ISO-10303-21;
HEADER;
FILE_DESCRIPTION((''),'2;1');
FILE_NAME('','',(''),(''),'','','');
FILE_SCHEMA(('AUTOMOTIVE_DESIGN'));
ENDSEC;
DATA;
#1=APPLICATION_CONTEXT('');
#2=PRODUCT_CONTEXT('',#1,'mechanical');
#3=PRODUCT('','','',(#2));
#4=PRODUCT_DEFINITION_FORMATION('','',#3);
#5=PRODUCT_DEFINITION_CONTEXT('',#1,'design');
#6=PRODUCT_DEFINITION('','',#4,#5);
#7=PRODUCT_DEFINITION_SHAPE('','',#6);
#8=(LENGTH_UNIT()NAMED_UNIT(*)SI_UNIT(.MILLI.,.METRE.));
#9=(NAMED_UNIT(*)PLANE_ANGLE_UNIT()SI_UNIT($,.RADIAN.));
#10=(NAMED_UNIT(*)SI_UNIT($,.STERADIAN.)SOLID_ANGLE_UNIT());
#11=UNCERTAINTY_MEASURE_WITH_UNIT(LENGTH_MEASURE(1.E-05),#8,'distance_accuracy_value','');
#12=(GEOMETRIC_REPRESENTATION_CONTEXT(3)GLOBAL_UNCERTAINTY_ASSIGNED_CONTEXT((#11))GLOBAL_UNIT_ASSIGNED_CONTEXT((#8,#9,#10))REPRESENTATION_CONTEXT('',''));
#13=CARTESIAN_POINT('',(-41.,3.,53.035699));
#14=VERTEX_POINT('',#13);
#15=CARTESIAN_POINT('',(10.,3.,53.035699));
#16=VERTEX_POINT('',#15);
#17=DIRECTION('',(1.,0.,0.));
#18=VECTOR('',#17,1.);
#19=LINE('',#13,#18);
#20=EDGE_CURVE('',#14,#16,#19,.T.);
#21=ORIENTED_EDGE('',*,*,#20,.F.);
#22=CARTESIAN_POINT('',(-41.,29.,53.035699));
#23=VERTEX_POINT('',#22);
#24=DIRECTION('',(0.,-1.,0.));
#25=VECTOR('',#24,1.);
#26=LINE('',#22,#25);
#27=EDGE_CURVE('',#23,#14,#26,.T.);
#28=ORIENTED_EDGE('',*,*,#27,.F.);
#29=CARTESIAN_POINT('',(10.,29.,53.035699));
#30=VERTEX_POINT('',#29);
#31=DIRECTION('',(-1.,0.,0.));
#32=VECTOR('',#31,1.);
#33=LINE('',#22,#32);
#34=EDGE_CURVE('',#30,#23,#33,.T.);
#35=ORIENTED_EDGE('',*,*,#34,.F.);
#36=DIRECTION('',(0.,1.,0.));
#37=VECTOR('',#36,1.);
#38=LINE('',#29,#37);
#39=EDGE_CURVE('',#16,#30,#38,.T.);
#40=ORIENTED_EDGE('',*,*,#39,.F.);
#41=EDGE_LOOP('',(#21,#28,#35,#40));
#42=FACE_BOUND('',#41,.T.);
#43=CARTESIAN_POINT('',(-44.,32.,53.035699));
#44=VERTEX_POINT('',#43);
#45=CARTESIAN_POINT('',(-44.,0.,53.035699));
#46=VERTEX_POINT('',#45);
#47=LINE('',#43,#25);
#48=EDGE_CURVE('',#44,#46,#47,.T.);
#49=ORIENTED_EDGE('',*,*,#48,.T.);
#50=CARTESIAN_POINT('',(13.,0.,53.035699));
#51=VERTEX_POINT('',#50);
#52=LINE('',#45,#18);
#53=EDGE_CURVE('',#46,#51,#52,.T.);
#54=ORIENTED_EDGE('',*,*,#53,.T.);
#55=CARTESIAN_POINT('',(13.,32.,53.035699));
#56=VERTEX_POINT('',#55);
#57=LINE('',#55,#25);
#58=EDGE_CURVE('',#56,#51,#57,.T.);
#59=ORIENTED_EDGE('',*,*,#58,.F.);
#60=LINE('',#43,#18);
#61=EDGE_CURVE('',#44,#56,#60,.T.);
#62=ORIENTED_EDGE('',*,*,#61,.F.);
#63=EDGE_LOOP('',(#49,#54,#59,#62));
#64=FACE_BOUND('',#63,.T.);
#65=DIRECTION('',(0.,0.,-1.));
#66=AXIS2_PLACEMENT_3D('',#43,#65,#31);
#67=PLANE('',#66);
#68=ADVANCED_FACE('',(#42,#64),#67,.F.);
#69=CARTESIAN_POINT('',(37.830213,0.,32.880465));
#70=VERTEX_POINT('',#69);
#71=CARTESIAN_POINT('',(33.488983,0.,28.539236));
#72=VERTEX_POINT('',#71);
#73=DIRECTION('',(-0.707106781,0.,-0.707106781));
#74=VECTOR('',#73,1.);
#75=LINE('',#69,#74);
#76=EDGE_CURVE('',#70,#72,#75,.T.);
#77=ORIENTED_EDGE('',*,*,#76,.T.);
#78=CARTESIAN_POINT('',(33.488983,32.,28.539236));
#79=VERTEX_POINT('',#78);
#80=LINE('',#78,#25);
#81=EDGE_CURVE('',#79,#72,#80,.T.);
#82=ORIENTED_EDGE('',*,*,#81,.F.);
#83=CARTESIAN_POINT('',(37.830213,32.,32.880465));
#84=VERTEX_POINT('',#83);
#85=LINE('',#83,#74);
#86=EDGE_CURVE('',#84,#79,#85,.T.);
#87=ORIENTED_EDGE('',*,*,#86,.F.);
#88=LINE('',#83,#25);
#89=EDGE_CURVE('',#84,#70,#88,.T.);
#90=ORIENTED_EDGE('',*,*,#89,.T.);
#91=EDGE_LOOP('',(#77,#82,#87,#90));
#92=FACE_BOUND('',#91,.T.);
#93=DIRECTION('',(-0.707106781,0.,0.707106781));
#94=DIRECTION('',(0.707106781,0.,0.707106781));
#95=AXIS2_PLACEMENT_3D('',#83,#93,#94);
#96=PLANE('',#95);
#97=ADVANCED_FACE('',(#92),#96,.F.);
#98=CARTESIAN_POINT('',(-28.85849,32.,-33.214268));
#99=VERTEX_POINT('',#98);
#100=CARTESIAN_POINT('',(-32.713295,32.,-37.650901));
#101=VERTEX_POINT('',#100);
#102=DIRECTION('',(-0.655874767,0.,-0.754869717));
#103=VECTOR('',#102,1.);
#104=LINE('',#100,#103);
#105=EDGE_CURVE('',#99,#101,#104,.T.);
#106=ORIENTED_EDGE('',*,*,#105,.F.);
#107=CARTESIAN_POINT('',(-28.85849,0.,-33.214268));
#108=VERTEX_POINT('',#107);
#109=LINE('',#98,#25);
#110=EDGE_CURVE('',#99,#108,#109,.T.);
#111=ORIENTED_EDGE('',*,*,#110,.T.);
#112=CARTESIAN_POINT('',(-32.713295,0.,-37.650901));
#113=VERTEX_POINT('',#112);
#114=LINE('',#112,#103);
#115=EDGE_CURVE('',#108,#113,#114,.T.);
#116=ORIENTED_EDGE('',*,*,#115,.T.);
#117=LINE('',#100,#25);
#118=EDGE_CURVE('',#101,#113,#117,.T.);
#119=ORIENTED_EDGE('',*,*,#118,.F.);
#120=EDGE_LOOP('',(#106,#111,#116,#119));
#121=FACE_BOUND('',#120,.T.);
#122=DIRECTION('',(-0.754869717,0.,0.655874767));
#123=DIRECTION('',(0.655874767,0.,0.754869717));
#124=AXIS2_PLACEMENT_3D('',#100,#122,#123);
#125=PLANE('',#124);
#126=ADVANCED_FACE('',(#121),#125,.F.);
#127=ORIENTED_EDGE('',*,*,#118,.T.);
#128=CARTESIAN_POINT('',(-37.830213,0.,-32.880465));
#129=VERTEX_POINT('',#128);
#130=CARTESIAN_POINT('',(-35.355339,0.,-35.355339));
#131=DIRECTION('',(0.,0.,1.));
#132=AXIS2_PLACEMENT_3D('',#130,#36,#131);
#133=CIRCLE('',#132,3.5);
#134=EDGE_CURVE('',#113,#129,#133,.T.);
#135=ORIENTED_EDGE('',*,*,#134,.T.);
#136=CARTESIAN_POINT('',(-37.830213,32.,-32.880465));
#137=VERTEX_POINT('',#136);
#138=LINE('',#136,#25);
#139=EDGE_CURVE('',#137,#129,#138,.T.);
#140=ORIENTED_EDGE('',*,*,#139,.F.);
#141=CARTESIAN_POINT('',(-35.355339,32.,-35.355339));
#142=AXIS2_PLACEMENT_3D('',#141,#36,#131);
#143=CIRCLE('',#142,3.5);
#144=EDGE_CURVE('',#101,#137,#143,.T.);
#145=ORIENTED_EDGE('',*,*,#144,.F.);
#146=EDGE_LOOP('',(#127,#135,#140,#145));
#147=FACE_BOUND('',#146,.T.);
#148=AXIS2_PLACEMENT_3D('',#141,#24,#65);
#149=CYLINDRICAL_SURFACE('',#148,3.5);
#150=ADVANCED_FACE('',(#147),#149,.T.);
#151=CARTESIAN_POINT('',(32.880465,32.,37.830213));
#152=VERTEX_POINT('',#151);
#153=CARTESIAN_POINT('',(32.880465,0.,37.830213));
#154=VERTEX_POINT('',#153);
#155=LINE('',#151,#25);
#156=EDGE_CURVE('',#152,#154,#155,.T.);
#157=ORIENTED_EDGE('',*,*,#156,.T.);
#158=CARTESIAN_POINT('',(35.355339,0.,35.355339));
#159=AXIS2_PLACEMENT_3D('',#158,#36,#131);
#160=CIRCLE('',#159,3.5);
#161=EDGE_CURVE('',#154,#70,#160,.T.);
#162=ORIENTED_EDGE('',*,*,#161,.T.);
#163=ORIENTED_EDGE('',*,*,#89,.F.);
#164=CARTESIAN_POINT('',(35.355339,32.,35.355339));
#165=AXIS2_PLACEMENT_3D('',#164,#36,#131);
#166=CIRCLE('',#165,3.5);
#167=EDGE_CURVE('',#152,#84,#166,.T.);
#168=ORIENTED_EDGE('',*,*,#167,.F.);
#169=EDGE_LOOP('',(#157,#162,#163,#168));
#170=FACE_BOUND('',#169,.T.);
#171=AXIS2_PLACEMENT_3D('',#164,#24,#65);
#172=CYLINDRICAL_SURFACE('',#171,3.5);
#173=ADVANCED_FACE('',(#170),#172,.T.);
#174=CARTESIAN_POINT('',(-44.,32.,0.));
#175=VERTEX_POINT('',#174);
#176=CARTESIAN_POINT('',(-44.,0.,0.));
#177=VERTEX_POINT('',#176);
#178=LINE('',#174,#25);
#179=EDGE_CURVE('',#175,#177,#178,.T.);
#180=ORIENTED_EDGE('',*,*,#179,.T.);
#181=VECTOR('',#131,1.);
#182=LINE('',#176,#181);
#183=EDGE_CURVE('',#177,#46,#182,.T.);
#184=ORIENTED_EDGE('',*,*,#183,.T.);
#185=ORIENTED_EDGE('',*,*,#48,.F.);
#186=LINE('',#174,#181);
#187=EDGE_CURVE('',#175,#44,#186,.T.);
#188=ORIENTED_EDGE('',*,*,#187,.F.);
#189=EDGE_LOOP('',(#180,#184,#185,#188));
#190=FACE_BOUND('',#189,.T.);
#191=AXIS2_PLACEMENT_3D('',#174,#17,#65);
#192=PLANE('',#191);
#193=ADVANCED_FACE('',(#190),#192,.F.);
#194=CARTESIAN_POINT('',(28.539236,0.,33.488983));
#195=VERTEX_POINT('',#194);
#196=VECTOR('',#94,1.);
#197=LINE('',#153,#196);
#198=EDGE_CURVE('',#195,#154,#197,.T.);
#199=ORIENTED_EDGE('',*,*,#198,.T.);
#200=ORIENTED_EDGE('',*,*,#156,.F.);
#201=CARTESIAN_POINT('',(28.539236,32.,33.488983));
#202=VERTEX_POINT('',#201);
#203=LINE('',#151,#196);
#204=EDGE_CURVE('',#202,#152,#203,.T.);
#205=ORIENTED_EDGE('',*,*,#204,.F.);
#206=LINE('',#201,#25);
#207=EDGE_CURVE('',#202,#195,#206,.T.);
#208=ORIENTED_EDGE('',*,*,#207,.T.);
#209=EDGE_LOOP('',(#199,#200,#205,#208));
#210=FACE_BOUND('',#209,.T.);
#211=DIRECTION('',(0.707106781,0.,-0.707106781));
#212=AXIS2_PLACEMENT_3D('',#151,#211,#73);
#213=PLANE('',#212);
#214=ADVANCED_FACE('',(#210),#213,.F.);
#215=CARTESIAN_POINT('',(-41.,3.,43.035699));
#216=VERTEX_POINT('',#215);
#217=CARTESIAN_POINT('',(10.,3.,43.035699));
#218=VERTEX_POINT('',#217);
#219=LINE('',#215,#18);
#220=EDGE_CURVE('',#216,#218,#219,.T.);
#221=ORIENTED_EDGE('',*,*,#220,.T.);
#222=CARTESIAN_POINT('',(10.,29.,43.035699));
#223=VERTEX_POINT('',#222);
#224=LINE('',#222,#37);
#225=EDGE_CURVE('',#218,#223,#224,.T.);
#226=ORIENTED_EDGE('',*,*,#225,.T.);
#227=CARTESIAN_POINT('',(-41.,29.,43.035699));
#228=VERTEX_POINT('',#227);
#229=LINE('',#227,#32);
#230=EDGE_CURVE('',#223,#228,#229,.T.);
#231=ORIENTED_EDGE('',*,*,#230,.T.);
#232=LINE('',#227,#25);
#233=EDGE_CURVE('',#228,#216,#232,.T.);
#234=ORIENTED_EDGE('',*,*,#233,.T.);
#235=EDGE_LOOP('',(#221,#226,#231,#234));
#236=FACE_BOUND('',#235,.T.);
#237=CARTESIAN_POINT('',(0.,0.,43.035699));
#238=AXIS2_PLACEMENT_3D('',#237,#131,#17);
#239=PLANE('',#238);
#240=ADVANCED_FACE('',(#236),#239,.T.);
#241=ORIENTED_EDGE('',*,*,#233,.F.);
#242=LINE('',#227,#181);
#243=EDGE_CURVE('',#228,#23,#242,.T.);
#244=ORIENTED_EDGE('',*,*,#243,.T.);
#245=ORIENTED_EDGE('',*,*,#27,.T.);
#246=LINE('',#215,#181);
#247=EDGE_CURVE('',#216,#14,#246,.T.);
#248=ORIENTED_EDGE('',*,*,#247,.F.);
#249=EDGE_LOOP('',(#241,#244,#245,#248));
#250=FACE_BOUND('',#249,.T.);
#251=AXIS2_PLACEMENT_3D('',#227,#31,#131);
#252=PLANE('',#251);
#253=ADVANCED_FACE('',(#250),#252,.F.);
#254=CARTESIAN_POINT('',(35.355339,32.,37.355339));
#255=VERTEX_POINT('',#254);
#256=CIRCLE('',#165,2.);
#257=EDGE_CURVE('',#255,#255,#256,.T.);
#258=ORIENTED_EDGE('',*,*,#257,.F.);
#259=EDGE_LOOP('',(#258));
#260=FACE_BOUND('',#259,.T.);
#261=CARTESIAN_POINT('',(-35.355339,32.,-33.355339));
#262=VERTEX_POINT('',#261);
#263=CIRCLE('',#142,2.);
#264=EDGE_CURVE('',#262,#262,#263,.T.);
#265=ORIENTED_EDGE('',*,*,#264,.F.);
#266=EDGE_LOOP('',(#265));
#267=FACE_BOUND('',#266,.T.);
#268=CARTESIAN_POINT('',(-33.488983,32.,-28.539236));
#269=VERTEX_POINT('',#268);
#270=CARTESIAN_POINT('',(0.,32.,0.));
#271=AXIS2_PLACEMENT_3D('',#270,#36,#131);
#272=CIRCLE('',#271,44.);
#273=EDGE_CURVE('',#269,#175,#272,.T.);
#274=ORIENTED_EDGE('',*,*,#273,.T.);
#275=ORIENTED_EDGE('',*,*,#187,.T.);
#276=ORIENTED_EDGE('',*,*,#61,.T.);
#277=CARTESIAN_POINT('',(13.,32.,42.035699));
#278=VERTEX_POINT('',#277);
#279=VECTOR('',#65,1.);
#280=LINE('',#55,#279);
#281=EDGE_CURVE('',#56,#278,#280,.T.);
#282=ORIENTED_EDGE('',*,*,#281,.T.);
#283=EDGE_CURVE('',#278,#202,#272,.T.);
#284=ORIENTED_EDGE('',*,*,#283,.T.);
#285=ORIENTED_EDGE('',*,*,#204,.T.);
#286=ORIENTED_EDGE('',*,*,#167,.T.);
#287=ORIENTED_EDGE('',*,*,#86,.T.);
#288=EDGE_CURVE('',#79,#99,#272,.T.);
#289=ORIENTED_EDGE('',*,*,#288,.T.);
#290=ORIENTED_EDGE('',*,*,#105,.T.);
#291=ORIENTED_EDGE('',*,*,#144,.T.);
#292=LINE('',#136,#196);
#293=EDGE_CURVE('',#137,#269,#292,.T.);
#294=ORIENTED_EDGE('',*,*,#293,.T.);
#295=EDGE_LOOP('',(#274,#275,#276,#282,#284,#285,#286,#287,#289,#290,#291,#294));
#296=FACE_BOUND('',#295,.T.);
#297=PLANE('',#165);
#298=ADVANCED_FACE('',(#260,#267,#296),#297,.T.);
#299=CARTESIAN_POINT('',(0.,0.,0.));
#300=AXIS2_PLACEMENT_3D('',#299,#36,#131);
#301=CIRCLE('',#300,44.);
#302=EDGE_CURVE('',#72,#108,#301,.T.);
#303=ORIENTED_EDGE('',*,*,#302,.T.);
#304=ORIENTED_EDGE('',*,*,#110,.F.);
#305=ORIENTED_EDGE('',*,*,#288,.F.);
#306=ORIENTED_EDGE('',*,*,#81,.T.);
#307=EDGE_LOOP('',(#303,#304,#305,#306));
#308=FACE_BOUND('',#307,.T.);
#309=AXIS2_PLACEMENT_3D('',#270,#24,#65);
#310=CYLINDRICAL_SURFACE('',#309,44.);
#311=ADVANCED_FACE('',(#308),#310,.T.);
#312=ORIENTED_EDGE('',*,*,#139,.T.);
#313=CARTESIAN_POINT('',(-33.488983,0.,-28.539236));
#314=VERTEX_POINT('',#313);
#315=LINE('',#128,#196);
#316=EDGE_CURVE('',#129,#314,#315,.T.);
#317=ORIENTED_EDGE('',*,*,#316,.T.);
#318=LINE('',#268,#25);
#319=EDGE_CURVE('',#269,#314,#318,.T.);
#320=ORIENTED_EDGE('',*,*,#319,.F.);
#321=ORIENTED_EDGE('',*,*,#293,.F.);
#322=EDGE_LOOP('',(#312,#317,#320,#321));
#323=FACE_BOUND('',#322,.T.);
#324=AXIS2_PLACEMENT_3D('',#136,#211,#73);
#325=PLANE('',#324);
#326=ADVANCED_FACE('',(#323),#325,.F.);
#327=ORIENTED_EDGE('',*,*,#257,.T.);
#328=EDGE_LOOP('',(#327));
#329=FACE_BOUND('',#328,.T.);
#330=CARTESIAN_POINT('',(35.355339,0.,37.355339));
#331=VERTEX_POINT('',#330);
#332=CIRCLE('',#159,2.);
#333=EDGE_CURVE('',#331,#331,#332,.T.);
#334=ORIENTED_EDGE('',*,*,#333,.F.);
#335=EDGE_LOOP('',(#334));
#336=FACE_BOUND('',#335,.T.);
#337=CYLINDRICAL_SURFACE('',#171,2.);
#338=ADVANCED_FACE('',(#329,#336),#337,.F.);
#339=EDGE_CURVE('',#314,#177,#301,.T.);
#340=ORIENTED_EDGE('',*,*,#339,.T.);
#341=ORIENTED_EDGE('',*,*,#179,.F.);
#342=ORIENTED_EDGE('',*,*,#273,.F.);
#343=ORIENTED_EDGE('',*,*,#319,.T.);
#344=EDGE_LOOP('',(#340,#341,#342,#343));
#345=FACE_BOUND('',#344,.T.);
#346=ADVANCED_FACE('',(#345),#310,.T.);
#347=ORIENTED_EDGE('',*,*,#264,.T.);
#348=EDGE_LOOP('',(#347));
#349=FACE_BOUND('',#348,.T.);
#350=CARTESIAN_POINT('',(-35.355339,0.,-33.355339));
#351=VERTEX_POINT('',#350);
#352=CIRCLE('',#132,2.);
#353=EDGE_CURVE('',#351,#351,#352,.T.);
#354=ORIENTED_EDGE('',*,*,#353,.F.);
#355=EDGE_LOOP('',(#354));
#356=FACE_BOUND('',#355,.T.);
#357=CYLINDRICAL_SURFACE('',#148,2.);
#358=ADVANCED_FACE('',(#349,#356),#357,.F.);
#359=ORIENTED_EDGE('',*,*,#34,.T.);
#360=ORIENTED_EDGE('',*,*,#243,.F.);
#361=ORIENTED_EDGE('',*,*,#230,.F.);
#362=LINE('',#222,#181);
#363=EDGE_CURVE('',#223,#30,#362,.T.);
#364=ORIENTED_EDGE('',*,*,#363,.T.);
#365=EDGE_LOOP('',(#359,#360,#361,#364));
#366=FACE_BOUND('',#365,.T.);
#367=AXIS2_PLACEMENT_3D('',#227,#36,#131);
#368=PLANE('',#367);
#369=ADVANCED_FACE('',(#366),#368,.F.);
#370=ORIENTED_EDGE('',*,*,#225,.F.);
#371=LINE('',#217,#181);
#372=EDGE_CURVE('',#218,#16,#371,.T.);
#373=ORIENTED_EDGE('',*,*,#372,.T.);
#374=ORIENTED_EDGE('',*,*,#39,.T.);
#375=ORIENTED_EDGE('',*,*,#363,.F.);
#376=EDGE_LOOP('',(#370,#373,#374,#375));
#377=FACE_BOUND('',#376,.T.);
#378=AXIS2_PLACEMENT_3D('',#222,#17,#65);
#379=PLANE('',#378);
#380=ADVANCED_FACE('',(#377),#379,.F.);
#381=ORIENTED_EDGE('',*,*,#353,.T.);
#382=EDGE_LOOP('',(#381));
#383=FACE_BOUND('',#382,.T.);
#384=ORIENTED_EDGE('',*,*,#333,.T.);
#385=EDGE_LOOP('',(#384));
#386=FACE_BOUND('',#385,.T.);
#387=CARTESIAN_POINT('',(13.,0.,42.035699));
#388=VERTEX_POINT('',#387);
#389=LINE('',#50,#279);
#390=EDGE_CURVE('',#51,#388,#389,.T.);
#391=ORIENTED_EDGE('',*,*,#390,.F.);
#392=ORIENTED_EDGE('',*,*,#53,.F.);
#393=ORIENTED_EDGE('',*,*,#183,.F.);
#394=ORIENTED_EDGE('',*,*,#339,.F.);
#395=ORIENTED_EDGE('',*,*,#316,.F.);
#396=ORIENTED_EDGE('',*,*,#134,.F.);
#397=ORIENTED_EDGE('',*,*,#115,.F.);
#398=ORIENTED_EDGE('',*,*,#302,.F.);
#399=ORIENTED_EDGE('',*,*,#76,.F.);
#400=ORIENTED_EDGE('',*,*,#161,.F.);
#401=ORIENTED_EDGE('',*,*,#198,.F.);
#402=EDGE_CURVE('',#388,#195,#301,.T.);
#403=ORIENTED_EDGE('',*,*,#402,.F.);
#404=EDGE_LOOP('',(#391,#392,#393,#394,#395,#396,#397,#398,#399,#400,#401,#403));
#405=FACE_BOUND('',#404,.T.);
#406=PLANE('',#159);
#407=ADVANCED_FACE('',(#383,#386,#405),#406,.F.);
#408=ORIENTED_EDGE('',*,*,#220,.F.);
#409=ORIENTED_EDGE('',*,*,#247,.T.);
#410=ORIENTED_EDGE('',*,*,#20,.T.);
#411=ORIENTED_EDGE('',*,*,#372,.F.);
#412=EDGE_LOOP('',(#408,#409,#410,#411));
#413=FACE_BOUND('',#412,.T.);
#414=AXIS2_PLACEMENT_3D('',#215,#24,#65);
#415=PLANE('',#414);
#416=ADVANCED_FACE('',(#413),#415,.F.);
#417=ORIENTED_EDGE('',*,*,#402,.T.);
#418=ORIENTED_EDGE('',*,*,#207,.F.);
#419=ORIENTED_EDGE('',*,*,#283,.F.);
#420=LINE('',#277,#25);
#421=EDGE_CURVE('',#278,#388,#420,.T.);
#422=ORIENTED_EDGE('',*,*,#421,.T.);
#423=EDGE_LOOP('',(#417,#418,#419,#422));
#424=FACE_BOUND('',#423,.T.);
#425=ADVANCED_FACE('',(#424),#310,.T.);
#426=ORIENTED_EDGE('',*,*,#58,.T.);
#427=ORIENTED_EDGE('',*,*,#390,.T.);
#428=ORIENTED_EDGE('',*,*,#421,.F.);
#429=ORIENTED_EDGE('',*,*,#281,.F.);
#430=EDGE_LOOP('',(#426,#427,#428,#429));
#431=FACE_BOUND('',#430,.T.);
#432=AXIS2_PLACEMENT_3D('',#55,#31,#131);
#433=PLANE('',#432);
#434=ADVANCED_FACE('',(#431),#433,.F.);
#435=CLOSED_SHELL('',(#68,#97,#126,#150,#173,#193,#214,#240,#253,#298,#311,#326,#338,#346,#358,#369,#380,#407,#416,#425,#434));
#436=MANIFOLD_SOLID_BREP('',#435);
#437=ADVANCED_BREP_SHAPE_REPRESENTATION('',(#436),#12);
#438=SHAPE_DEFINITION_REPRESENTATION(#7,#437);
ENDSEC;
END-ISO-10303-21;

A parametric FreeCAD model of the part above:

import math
import FreeCAD as App
import Part
import Sketcher
from FreeCAD import Vector
Q = App.Units.Quantity


def add_polygon(sketch, points):
    """Adds a closed chain of lines whose ends are joined by coincident constraints."""
    first, n = sketch.GeometryCount, len(points)
    for a, b in zip(points, points[1:] + points[:1]):
        sketch.addGeometry(Part.LineSegment(App.Vector(*a, 0), App.Vector(*b, 0)), False)
    for i in range(n):
        sketch.addConstraint(Sketcher.Constraint("Coincident", first + i, 2, first + (i + 1) % n, 1))

doc = App.newDocument("Part")
params = doc.addObject("Spreadsheet::Sheet", "Params")
for row, (alias, value) in enumerate([
    ("sketch1_diameter", "4 mm"),
    ("sketch1_radius", "44 mm"),
    ("sketch1_radius2", "3.5 mm"),
    ("sketch1_width", "57 mm"),
    ("sketch1_height", "11 mm"),
    ("pad1_length", "32 mm"),
    ("sketch2_width", "51 mm"),
    ("sketch2_height", "26 mm"),
    ("pocket1_length", "10 mm"),
], start=1):
    params.set(f"A{row}", alias)
    params.set(f"B{row}", "=" + value)
    params.setAlias(f"B{row}", alias)

body = doc.addObject("PartDesign::Body", "Body")

# Sketch on XZ plane
sketch1 = doc.addObject("Sketcher::SketchObject", "Sketch")
body.addObject(sketch1)
sketch1.AttachmentSupport = (doc.XZ_Plane, [""])
sketch1.MapMode = "FlatFace"
sketch1.addGeometry([
    Part.LineSegment(Vector(-37.830213, -32.880465, 0), Vector(-33.488983, -28.539236, 0)),  # 0
    Part.ArcOfCircle(Part.Circle(Vector(0, 0, 0), Vector(0, 0, 1), 44), math.radians(180), math.radians(220.437561)),  # 1
    Part.LineSegment(Vector(-44, 0, 0), Vector(-44, 53.035699, 0)),  # 2
    Part.LineSegment(Vector(-44, 53.035699, 0), Vector(13, 53.035699, 0)),  # 3
    Part.LineSegment(Vector(13, 53.035699, 0), Vector(13, 42.035699, 0)),  # 4
    Part.ArcOfCircle(Part.Circle(Vector(0, 0, 0), Vector(0, 0, 1), 44), math.radians(49.562439), math.radians(72.815204)),  # 5
    Part.LineSegment(Vector(28.539236, 33.488983, 0), Vector(32.880465, 37.830213, 0)),  # 6
    Part.ArcOfCircle(Part.Circle(Vector(35.355339, 35.355339, 0), Vector(0, 0, 1), 3.5), math.radians(-45), math.radians(135)),  # 7
    Part.LineSegment(Vector(37.830213, 32.880465, 0), Vector(33.488983, 28.539236, 0)),  # 8
    Part.ArcOfCircle(Part.Circle(Vector(0, 0, 0), Vector(0, 0, 1), 44), math.radians(-130.986013), math.radians(40.437561)),  # 9
    Part.LineSegment(Vector(-28.85849, -33.214268, 0), Vector(-32.713295, -37.650901, 0)),  # 10
    Part.ArcOfCircle(Part.Circle(Vector(-35.355339, -35.355339, 0), Vector(0, 0, 1), 3.5), math.radians(135), math.radians(319.013987)),  # 11
    Part.Circle(Vector(35.355339, 35.355339, 0), Vector(0, 0, 1), 2),  # 12
    Part.Circle(Vector(-35.355339, -35.355339, 0), Vector(0, 0, 1), 2),  # 13
], False)
sketch1.addConstraint([
    Sketcher.Constraint("Coincident", 0, 2, 1, 2),
    Sketcher.Constraint("Tangent", 1, 1, 2, 1),
    Sketcher.Constraint("Coincident", 2, 2, 3, 1),
    Sketcher.Constraint("Coincident", 3, 2, 4, 1),
    Sketcher.Constraint("Coincident", 4, 2, 5, 2),
    Sketcher.Constraint("Coincident", 5, 1, 6, 1),
    Sketcher.Constraint("Tangent", 6, 2, 7, 2),
    Sketcher.Constraint("Tangent", 7, 1, 8, 1),
    Sketcher.Constraint("Coincident", 8, 2, 9, 2),
    Sketcher.Constraint("Coincident", 9, 1, 10, 1),
    Sketcher.Constraint("Tangent", 10, 2, 11, 2),
    Sketcher.Constraint("Tangent", 11, 1, 0, 1),
    Sketcher.Constraint("Vertical", 2),
    Sketcher.Constraint("Horizontal", 3),
    Sketcher.Constraint("Vertical", 4),
    Sketcher.Constraint("Coincident", 1, 3, -1, 1),
    Sketcher.Constraint("Coincident", 5, 3, -1, 1),
    Sketcher.Constraint("Coincident", 9, 3, -1, 1),
    Sketcher.Constraint("Coincident", 12, 3, 7, 3),
    Sketcher.Constraint("Coincident", 13, 3, 11, 3),
    Sketcher.Constraint("Equal", 1, 5),
    Sketcher.Constraint("Equal", 5, 9),
    Sketcher.Constraint("Equal", 7, 11),
    Sketcher.Constraint("Equal", 12, 13),
    Sketcher.Constraint("Symmetric", 7, 3, 11, 3, -1, 1),
    Sketcher.Constraint("Parallel", 0, 6),
    Sketcher.Constraint("Parallel", 6, 8),
    Sketcher.Constraint("Equal", 0, 6),
    Sketcher.Constraint("Diameter", 12, 4.0),
    Sketcher.Constraint("Radius", 1, 44.0),
    Sketcher.Constraint("Radius", 7, 3.5),
    Sketcher.Constraint("DistanceX", 3, 1, 3, 2, 57.0),
    Sketcher.Constraint("DistanceY", 4, 2, 4, 1, 11.0),
    Sketcher.Constraint("Angle", 0, Q("45 deg")),
    Sketcher.Constraint("DistanceY", 10, 2, -1, 1, 37.650901),
    Sketcher.Constraint("Distance", 10, 5.87735),
])
sketch1.setExpression("Constraints[28]", "Params.sketch1_diameter")
sketch1.setExpression("Constraints[29]", "Params.sketch1_radius")
sketch1.setExpression("Constraints[30]", "Params.sketch1_radius2")
sketch1.setExpression("Constraints[31]", "Params.sketch1_width")
sketch1.setExpression("Constraints[32]", "Params.sketch1_height")
pad1 = doc.addObject("PartDesign::Pad", "Pad")
body.addObject(pad1)
pad1.Profile = sketch1
pad1.setExpression("Length", "Params.pad1_length")
pad1.Reversed = True

# Sketch on XY plane
sketch2 = doc.addObject("Sketcher::SketchObject", "Sketch001")
body.addObject(sketch2)
sketch2.AttachmentSupport = (doc.XY_Plane, [""])
sketch2.MapMode = "FlatFace"
sketch2.AttachmentOffset = App.Placement(Vector(0, 0, 53.035699), App.Rotation())
add_polygon(sketch2, [(-41, 29), (-41, 3), (10, 3), (10, 29)])  # lines 0-3
sketch2.addConstraint([
    Sketcher.Constraint("Vertical", 0),
    Sketcher.Constraint("Horizontal", 1),
    Sketcher.Constraint("Vertical", 2),
    Sketcher.Constraint("Horizontal", 3),
    Sketcher.Constraint("DistanceX", 1, 1, 1, 2, 51.0),
    Sketcher.Constraint("DistanceY", 0, 2, 0, 1, 26.0),
    Sketcher.Constraint("DistanceX", 0, 2, -1, 1, 41.0),
    Sketcher.Constraint("DistanceY", -1, 1, 0, 2, 3.0),
])
sketch2.setExpression("Constraints[8]", "Params.sketch2_width")
sketch2.setExpression("Constraints[9]", "Params.sketch2_height")
pocket1 = doc.addObject("PartDesign::Pocket", "Pocket")
body.addObject(pocket1)
pocket1.Profile = sketch2
pocket1.setExpression("Length", "Params.pocket1_length")

doc.recompute()
